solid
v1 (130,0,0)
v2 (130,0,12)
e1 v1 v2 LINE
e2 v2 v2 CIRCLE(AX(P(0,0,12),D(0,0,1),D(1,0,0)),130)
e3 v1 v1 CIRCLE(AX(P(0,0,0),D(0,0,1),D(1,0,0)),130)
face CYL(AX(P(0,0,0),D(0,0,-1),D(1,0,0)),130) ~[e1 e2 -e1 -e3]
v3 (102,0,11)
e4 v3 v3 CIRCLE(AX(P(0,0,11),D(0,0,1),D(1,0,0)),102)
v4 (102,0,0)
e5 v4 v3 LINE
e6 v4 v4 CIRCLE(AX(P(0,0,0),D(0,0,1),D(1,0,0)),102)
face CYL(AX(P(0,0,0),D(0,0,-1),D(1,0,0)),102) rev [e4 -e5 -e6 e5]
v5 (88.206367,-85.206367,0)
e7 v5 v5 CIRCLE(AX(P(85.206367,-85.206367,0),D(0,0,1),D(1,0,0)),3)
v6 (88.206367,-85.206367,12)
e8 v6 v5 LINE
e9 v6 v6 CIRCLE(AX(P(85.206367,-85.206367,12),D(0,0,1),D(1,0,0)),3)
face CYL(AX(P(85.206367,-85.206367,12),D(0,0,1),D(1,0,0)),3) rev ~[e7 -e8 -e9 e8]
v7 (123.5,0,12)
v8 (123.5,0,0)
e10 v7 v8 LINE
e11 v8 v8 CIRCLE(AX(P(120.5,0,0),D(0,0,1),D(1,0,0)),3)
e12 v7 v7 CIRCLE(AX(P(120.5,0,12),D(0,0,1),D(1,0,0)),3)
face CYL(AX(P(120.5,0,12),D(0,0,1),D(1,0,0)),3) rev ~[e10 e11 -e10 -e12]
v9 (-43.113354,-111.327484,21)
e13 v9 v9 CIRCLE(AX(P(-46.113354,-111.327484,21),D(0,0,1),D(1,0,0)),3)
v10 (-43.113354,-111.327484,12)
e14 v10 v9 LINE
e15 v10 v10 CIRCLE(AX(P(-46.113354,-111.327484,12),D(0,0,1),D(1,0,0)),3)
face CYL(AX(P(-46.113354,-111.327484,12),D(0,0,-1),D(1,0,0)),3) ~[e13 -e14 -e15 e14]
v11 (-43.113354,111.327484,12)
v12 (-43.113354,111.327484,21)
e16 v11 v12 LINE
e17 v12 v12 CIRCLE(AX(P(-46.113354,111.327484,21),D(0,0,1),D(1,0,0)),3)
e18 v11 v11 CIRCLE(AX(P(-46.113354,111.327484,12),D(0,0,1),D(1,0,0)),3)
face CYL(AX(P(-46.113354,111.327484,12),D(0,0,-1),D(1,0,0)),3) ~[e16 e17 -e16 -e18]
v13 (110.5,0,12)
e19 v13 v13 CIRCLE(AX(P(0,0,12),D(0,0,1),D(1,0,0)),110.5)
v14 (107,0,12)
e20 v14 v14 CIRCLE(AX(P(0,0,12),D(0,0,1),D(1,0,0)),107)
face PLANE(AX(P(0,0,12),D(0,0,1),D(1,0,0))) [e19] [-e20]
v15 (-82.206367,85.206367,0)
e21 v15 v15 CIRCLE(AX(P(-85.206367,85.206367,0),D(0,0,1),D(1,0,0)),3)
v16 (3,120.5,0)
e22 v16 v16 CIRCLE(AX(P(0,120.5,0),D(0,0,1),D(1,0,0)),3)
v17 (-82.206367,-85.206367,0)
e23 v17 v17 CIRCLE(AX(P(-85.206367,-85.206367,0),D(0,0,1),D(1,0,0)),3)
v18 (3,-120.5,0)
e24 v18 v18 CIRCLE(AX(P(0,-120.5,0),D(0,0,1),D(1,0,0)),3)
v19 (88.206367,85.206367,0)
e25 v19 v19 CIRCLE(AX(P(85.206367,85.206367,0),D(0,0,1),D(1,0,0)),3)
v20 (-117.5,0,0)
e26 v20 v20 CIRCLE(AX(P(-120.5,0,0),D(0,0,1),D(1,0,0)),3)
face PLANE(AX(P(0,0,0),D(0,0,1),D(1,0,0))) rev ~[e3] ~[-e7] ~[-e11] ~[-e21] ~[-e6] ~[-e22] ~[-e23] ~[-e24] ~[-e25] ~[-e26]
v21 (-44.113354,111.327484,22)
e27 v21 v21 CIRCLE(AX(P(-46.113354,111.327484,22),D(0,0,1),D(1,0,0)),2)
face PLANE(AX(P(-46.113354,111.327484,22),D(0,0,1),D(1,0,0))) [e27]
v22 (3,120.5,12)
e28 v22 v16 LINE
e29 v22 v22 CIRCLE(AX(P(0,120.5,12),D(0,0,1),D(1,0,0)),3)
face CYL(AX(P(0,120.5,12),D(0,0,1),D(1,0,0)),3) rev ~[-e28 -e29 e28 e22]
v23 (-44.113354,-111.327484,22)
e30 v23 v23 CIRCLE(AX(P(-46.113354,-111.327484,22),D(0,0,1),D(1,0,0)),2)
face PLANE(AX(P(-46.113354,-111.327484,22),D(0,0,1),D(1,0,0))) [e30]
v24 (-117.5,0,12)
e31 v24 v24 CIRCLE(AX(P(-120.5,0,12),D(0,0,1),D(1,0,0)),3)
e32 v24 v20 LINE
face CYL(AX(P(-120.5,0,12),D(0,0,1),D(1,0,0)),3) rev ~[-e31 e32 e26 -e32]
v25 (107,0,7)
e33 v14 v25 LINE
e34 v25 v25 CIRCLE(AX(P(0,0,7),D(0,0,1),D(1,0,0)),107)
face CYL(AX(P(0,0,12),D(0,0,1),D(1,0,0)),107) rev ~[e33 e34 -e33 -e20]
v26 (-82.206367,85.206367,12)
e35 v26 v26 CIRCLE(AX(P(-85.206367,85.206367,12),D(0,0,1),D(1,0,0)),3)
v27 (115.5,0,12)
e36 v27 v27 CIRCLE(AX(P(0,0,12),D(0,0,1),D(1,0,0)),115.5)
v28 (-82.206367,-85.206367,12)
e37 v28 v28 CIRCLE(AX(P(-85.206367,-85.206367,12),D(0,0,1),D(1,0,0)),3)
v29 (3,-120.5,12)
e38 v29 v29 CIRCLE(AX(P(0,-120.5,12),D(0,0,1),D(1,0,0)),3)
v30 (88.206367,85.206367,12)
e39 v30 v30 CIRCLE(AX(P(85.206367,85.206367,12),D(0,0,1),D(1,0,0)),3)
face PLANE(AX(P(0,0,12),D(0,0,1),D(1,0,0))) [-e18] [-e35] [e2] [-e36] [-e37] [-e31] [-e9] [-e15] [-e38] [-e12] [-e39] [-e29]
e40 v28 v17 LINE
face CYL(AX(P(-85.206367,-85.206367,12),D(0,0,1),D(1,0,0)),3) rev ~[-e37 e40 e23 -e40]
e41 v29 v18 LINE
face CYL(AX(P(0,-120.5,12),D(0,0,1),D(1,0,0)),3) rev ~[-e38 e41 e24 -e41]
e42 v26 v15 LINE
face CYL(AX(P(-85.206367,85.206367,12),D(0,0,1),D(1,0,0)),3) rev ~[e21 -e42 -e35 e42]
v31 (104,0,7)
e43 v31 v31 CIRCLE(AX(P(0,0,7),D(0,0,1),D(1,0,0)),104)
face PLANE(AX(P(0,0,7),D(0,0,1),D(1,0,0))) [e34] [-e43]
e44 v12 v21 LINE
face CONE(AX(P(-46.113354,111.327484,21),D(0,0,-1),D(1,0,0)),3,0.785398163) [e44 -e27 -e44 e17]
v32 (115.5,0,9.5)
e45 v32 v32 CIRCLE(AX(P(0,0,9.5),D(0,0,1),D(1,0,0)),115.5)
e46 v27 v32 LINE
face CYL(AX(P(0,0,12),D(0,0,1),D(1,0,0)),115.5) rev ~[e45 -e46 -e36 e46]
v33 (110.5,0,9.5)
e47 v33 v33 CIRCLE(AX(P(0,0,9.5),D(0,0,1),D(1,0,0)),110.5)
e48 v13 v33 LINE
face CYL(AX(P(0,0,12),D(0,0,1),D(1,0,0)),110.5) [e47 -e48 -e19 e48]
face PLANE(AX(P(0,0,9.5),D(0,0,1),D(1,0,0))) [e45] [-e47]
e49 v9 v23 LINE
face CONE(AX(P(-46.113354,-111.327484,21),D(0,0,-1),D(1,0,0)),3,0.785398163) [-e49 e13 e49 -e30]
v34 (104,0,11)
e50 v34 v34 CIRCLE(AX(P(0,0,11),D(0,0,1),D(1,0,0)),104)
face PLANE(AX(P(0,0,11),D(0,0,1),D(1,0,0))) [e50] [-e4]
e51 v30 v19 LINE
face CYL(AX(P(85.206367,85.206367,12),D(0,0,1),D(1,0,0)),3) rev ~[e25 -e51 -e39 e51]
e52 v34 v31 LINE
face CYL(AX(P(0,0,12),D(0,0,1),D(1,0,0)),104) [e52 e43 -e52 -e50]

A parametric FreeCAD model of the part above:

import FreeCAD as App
import Part
import Sketcher

V = App.Vector


def edges_at(feature, points):
    """Names of the edges that pass closest to the given points."""
    edges = feature.Shape.Edges
    near = lambda p: min(range(len(edges)), key=lambda i: edges[i].distToShape(Part.Vertex(*p))[0])
    return sorted({f"Edge{near(p) + 1}" for p in points})

doc = App.newDocument("Part")
params = doc.addObject("Spreadsheet::Sheet", "Params")
for row, (alias, value) in enumerate([
    ("sketch1_diameter", "260 mm"),
    ("sketch1_diameter2", "204 mm"),
    ("pad1_length", "12 mm"),
    ("sketch2_diameter", "231 mm"),
    ("sketch2_diameter2", "221 mm"),
    ("pocket1_length", "2.5 mm"),
    ("sketch3_diameter", "214 mm"),
    ("sketch3_diameter2", "208 mm"),
    ("pocket2_length", "5 mm"),
    ("sketch4_diameter", "208 mm"),
    ("sketch4_diameter2", "204 mm"),
    ("pocket3_length", "1 mm"),
    ("sketch5_diameter", "6 mm"),
    ("pocket4_length", "12 mm"),
    ("sketch6_diameter", "6 mm"),
    ("pad2_length", "10 mm"),
    ("chamfer_size", "1 mm"),
    ("chamfer2_size", "1 mm"),
], start=1):
    params.set(f"A{row}", alias)
    params.set(f"B{row}", "=" + value)
    params.setAlias(f"B{row}", alias)

body = doc.addObject("PartDesign::Body", "Body")

# Sketch on XY plane
sketch1 = doc.addObject("Sketcher::SketchObject", "Sketch")
body.addObject(sketch1)
sketch1.AttachmentSupport = (doc.XY_Plane, [""])
sketch1.MapMode = "FlatFace"
sketch1.addGeometry([
    Part.Circle(V(0, 0, 0), V(0, 0, 1), 130),
    Part.Circle(V(0, 0, 0), V(0, 0, 1), 102),
], False)
sketch1.addConstraint([
    Sketcher.Constraint("Coincident", 0, 3, -1, 1),
    Sketcher.Constraint("Coincident", 1, 3, -1, 1),
    Sketcher.Constraint("Diameter", 0, 260.0),
    Sketcher.Constraint("Diameter", 1, 204.0),
])
sketch1.setExpression("Constraints[2]", "Params.sketch1_diameter")
sketch1.setExpression("Constraints[3]", "Params.sketch1_diameter2")
pad1 = doc.addObject("PartDesign::Pad", "Pad")
body.addObject(pad1)
pad1.Profile = sketch1
pad1.setExpression("Length", "Params.pad1_length")

# Sketch on XY plane
sketch2 = doc.addObject("Sketcher::SketchObject", "Sketch001")
body.addObject(sketch2)
sketch2.AttachmentSupport = (doc.XY_Plane, [""])
sketch2.MapMode = "FlatFace"
sketch2.AttachmentOffset = App.Placement(V(0, 0, 12), App.Rotation())
sketch2.addGeometry([
    Part.Circle(V(0, 0, 0), V(0, 0, 1), 115.5),
    Part.Circle(V(0, 0, 0), V(0, 0, 1), 110.5),
], False)
sketch2.addConstraint([
    Sketcher.Constraint("Coincident", 0, 3, -1, 1),
    Sketcher.Constraint("Coincident", 1, 3, -1, 1),
    Sketcher.Constraint("Diameter", 0, 231.0),
    Sketcher.Constraint("Diameter", 1, 221.0),
])
sketch2.setExpression("Constraints[2]", "Params.sketch2_diameter")
sketch2.setExpression("Constraints[3]", "Params.sketch2_diameter2")
pocket1 = doc.addObject("PartDesign::Pocket", "Pocket")
body.addObject(pocket1)
pocket1.Profile = sketch2
pocket1.setExpression("Length", "Params.pocket1_length")

# Sketch on XY plane
sketch3 = doc.addObject("Sketcher::SketchObject", "Sketch002")
body.addObject(sketch3)
sketch3.AttachmentSupport = (doc.XY_Plane, [""])
sketch3.MapMode = "FlatFace"
sketch3.AttachmentOffset = App.Placement(V(0, 0, 12), App.Rotation())
sketch3.addGeometry([
    Part.Circle(V(0, 0, 0), V(0, 0, 1), 107),
    Part.Circle(V(0, 0, 0), V(0, 0, 1), 104),
], False)
sketch3.addConstraint([
    Sketcher.Constraint("Coincident", 0, 3, -1, 1),
    Sketcher.Constraint("Coincident", 1, 3, -1, 1),
    Sketcher.Constraint("Diameter", 0, 214.0),
    Sketcher.Constraint("Diameter", 1, 208.0),
])
sketch3.setExpression("Constraints[2]", "Params.sketch3_diameter")
sketch3.setExpression("Constraints[3]", "Params.sketch3_diameter2")
pocket2 = doc.addObject("PartDesign::Pocket", "Pocket001")
body.addObject(pocket2)
pocket2.Profile = sketch3
pocket2.setExpression("Length", "Params.pocket2_length")

# Sketch on XY plane
sketch4 = doc.addObject("Sketcher::SketchObject", "Sketch003")
body.addObject(sketch4)
sketch4.AttachmentSupport = (doc.XY_Plane, [""])
sketch4.MapMode = "FlatFace"
sketch4.AttachmentOffset = App.Placement(V(0, 0, 12), App.Rotation())
sketch4.addGeometry([
    Part.Circle(V(0, 0, 0), V(0, 0, 1), 104),
    Part.Circle(V(0, 0, 0), V(0, 0, 1), 102),
], False)
sketch4.addConstraint([
    Sketcher.Constraint("Coincident", 0, 3, -1, 1),
    Sketcher.Constraint("Coincident", 1, 3, -1, 1),
    Sketcher.Constraint("Diameter", 0, 208.0),
    Sketcher.Constraint("Diameter", 1, 204.0),
])
sketch4.setExpression("Constraints[2]", "Params.sketch4_diameter")
sketch4.setExpression("Constraints[3]", "Params.sketch4_diameter2")
pocket3 = doc.addObject("PartDesign::Pocket", "Pocket002")
body.addObject(pocket3)
pocket3.Profile = sketch4
pocket3.setExpression("Length", "Params.pocket3_length")

# Sketch on XY plane
sketch5 = doc.addObject("Sketcher::SketchObject", "Sketch004")
body.addObject(sketch5)
sketch5.AttachmentSupport = (doc.XY_Plane, [""])
sketch5.MapMode = "FlatFace"
sketch5.AttachmentOffset = App.Placement(V(0, 0, 12), App.Rotation())
sketch5.addGeometry([
    Part.Circle(V(-120.5, 0, 0), V(0, 0, 1), 3),  # 0
    Part.Circle(V(-85.206367, 85.206367, 0), V(0, 0, 1), 3),  # 1
    Part.Circle(V(0, 120.5, 0), V(0, 0, 1), 3),  # 2
    Part.Circle(V(120.5, 0, 0), V(0, 0, 1), 3),  # 3
    Part.Circle(V(85.206367, 85.206367, 0), V(0, 0, 1), 3),  # 4
    Part.Circle(V(85.206367, -85.206367, 0), V(0, 0, 1), 3),  # 5
    Part.Circle(V(0, -120.5, 0), V(0, 0, 1), 3),  # 6
    Part.Circle(V(-85.206367, -85.206367, 0), V(0, 0, 1), 3),  # 7
], False)
sketch5.addConstraint([
    Sketcher.Constraint("Equal", 0, 1),
    Sketcher.Constraint("Equal", 1, 2),
    Sketcher.Constraint("Equal", 2, 3),
    Sketcher.Constraint("Equal", 3, 4),
    Sketcher.Constraint("Equal", 4, 5),
    Sketcher.Constraint("Equal", 5, 6),
    Sketcher.Constraint("Equal", 6, 7),
    Sketcher.Constraint("Symmetric", 0, 3, 3, 3, -1, 1),
    Sketcher.Constraint("Symmetric", 1, 3, 5, 3, -1, 1),
    Sketcher.Constraint("Symmetric", 2, 3, 6, 3, -1, 1),
    Sketcher.Constraint("Symmetric", 4, 3, 7, 3, -1, 1),
    Sketcher.Constraint("Symmetric", 1, 3, 4, 3, -2),
    Sketcher.Constraint("PointOnObject", 0, 3, -1),
    Sketcher.Constraint("PointOnObject", 2, 3, -2),
    Sketcher.Constraint("Diameter", 0, 6.0),
    Sketcher.Constraint("DistanceX", 0, 3, 3, 3, 241.0),
    Sketcher.Constraint("DistanceY", -1, 1, 2, 3, 120.5),
    Sketcher.Constraint("DistanceX", 1, 3, -1, 1, 85.206367),
    Sketcher.Constraint("DistanceY", -1, 1, 1, 3, 85.206367),
])
sketch5.setExpression("Constraints[14]", "Params.sketch5_diameter")
pocket4 = doc.addObject("PartDesign::Pocket", "Pocket003")
body.addObject(pocket4)
pocket4.Profile = sketch5
pocket4.setExpression("Length", "Params.pocket4_length")

# Sketch on XY plane
sketch6 = doc.addObject("Sketcher::SketchObject", "Sketch005")
body.addObject(sketch6)
sketch6.AttachmentSupport = (doc.XY_Plane, [""])
sketch6.MapMode = "FlatFace"
sketch6.AttachmentOffset = App.Placement(V(0, 0, 12), App.Rotation())
sketch6.addGeometry([
    Part.Circle(V(-46.113354, 111.327484, 0), V(0, 0, 1), 3),
    Part.Circle(V(-46.113354, -111.327484, 0), V(0, 0, 1), 3),
], False)
sketch6.addConstraint([
    Sketcher.Constraint("Equal", 0, 1),
    Sketcher.Constraint("Symmetric", 0, 3, 1, 3, -1),
    Sketcher.Constraint("Diameter", 0, 6.0),
    Sketcher.Constraint("DistanceY", 1, 3, 0, 3, 222.654968),
    Sketcher.Constraint("DistanceX", 0, 3, -1, 1, 46.113354),
])
sketch6.setExpression("Constraints[2]", "Params.sketch6_diameter")
pad2 = doc.addObject("PartDesign::Pad", "Pad001")
body.addObject(pad2)
pad2.Profile = sketch6
pad2.setExpression("Length", "Params.pad2_length")
doc.recompute()

chamfer = doc.addObject("PartDesign::Chamfer", "Chamfer")
body.addObject(chamfer)
chamfer.Base = (pad2, edges_at(pad2, [(-49.113, -111.327, 22)]))
chamfer.setExpression("Size", "Params.chamfer_size")
doc.recompute()

chamfer2 = doc.addObject("PartDesign::Chamfer", "Chamfer001")
body.addObject(chamfer2)
chamfer2.Base = (chamfer, edges_at(chamfer, [(-49.113, 111.327, 22)]))
chamfer2.setExpression("Size", "Params.chamfer2_size")

doc.recompute()
